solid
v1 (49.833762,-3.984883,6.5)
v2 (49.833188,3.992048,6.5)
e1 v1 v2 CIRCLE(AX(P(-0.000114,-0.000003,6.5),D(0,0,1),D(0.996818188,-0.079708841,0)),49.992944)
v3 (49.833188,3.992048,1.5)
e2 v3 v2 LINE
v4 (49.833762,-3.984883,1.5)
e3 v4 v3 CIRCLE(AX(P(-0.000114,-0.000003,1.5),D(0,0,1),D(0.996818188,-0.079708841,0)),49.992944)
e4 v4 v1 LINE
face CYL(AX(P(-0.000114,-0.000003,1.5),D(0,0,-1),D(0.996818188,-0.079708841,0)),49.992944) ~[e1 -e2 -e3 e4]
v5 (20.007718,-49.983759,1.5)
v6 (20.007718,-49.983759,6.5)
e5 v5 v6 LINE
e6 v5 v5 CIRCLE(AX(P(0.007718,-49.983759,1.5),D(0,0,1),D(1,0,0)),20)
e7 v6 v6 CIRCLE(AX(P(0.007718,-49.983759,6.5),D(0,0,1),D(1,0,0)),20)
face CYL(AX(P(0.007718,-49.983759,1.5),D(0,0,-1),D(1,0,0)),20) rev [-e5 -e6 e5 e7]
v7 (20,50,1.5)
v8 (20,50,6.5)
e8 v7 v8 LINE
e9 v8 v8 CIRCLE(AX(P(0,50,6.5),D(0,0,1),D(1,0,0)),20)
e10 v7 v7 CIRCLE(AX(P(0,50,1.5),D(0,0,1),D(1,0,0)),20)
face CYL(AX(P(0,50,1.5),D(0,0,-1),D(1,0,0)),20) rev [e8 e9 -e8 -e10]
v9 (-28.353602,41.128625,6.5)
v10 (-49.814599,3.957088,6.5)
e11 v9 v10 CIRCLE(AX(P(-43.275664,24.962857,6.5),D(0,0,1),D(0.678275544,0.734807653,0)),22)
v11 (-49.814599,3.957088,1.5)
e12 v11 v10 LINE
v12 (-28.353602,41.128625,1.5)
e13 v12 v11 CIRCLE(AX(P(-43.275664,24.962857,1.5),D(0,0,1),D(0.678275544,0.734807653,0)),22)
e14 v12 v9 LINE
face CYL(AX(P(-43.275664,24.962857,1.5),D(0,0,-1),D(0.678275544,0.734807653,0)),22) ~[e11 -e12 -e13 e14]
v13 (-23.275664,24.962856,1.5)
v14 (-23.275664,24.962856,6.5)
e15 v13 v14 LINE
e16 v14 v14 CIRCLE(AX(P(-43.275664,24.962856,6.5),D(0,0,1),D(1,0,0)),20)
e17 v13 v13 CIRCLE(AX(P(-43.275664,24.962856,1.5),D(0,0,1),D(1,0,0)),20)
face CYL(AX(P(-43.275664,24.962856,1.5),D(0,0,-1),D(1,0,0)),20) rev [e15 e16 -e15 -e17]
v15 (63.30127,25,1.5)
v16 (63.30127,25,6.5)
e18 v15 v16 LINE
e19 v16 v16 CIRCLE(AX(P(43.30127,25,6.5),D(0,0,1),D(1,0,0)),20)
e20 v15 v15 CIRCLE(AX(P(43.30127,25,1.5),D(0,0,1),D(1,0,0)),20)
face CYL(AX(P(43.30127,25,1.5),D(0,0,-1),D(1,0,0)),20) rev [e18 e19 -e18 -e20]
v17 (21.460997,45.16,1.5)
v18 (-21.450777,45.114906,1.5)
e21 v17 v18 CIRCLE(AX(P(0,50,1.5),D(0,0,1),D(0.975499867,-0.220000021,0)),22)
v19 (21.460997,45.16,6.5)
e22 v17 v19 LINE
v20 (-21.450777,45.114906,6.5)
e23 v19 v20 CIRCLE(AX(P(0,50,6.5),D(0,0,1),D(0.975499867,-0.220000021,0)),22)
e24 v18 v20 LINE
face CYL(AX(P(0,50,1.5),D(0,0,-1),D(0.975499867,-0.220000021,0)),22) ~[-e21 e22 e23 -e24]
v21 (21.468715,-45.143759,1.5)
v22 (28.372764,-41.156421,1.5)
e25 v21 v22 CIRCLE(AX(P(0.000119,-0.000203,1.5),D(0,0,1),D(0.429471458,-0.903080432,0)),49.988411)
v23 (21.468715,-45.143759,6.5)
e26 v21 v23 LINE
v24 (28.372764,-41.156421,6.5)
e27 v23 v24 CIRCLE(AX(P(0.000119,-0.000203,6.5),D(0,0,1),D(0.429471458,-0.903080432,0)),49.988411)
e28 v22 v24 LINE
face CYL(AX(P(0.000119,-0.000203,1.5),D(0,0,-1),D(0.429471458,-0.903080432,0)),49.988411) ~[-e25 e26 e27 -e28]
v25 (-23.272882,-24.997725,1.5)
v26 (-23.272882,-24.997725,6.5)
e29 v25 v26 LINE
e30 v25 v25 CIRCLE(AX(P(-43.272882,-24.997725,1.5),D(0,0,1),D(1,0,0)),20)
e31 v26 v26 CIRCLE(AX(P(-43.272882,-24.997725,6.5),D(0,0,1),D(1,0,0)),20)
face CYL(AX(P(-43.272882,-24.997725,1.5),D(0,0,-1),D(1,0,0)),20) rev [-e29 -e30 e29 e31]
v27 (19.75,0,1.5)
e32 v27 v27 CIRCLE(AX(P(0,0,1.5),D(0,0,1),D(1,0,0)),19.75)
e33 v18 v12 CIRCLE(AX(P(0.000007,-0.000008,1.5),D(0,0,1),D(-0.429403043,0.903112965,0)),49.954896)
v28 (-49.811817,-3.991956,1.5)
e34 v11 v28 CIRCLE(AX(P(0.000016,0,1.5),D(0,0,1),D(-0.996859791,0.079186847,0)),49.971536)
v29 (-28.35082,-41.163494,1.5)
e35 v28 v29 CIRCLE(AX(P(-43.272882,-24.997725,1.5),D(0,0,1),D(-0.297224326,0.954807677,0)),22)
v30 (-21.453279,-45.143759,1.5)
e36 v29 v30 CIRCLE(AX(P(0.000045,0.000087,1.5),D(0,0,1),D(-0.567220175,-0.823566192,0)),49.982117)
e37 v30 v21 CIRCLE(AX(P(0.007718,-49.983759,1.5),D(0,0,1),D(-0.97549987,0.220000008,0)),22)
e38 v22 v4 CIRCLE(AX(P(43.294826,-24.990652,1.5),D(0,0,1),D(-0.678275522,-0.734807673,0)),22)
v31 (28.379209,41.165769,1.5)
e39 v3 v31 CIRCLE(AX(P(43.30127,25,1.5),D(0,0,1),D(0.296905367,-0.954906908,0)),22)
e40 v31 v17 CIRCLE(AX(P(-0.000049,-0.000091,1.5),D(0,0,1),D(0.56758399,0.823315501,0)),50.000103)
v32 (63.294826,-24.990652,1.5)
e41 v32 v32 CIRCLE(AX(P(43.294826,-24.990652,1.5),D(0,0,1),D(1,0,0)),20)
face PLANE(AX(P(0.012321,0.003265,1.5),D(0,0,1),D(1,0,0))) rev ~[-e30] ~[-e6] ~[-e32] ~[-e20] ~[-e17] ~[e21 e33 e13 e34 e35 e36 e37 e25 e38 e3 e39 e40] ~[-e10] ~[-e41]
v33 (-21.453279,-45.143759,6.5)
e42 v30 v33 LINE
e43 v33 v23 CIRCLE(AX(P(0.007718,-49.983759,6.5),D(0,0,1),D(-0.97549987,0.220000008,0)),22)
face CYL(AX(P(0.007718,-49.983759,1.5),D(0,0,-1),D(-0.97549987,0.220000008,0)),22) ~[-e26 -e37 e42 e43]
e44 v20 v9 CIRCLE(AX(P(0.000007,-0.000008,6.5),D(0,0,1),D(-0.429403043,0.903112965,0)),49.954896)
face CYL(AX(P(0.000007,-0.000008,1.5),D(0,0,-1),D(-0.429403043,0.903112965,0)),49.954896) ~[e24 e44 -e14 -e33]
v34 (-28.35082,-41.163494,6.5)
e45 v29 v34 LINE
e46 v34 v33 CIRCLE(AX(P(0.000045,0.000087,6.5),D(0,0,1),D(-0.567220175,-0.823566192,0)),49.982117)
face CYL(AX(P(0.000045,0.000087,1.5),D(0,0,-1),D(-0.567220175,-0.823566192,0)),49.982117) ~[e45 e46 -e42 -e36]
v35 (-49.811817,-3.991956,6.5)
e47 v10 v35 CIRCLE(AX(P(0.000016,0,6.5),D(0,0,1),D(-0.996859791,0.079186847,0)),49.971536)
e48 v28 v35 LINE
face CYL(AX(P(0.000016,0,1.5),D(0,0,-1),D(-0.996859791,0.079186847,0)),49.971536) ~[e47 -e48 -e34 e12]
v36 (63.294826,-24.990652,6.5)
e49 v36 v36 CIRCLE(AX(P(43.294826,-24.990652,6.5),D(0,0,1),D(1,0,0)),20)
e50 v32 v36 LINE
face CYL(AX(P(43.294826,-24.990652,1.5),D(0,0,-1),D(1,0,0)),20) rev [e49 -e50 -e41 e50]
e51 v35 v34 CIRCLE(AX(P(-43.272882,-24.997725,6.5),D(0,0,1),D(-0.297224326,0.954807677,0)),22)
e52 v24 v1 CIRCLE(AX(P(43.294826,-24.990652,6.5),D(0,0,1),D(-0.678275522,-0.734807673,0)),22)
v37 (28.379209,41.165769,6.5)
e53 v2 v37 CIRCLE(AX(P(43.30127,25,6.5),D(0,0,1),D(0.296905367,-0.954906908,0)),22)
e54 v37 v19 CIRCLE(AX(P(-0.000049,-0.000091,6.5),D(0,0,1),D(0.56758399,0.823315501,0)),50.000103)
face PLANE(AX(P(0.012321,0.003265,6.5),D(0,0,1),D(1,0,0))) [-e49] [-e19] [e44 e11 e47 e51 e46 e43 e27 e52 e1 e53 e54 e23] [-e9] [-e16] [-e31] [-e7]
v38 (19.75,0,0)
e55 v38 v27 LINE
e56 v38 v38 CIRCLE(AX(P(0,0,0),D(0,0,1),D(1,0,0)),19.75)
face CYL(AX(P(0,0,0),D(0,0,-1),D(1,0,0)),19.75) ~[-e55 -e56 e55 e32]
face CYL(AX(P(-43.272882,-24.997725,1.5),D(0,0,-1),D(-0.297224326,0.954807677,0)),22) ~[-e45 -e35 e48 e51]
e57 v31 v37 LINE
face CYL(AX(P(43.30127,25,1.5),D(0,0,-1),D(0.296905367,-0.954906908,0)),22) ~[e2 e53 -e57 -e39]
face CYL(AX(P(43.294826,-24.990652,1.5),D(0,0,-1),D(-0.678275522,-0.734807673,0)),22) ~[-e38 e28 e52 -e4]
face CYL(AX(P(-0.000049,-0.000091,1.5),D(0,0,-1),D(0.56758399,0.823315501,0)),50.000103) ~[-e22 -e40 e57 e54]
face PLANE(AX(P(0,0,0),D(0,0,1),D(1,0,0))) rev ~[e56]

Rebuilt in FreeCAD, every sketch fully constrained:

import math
import FreeCAD as App
import Part
import Sketcher

V = App.Vector
Q = App.Units.Quantity

doc = App.newDocument("Part")
params = doc.addObject("Spreadsheet::Sheet", "Params")
for row, (alias, value) in enumerate([
    ("sketch1_diameter", "39.5 mm"),
    ("pad1_length", "1.5 mm"),
    ("sketch2_diameter", "40 mm"),
    ("sketch2_radius", "22 mm"),
    ("pad2_length", "5 mm"),
], start=1):
    params.set(f"A{row}", alias)
    params.set(f"B{row}", "=" + value)
    params.setAlias(f"B{row}", alias)

body = doc.addObject("PartDesign::Body", "Body")

sketch1 = body.newObject("Sketcher::SketchObject", "Sketch")
sketch1.AttachmentSupport = (doc.getObject("XY_Plane"), [""])
sketch1.MapMode = "FlatFace"
sketch1.addGeometry(Part.Circle(V(0, 0, 0), V(0, 0, 1), 19.75), False)
sketch1.addConstraint([
    Sketcher.Constraint("Coincident", 0, 3, -1, 1),
    Sketcher.Constraint("Diameter", 0, Q("39.5 mm")),
])
sketch1.setExpression("Constraints[1]", "Params.sketch1_diameter")
pad1 = body.newObject("PartDesign::Pad", "Pad")
pad1.Profile = sketch1
pad1.setExpression("Length", "Params.pad1_length")

sketch2 = body.newObject("Sketcher::SketchObject", "Sketch001")
sketch2.AttachmentSupport = (doc.getObject("XY_Plane"), [""])
sketch2.MapMode = "FlatFace"
sketch2.AttachmentOffset = App.Placement(V(0, 0, 1.5), App.Rotation())
sketch2.addGeometry([
    Part.ArcOfCircle(Part.Circle(V(0.000007, -0.000008, 0), V(0, 0, 1), 49.954896), math.radians(115.429682), math.radians(124.581936)),
    Part.ArcOfCircle(Part.Circle(V(-43.275664, 24.962857, 0), V(0, 0, 1), 22), math.radians(47.290966), math.radians(252.709034)),
    Part.ArcOfCircle(Part.Circle(V(0.000016, 0, 0), V(0, 0, 1), 49.971536), math.radians(175.458173), math.radians(184.581932)),
    Part.ArcOfCircle(Part.Circle(V(-43.272882, -24.997725, 0), V(0, 0, 1), 22), math.radians(107.290966), math.radians(312.709033)),
    Part.ArcOfCircle(Part.Circle(V(0.000045, 0.000087, 0), V(0, 0, 1), 49.982117), math.radians(-124.556607), math.radians(-115.418069)),
    Part.ArcOfCircle(Part.Circle(V(0.007718, -49.983759, 0), V(0, 0, 1), 22), math.radians(167.290967), math.radians(372.709033)),
    Part.ArcOfCircle(Part.Circle(V(0.000119, -0.000203, 0), V(0, 0, 1), 49.988411), math.radians(-64.565978), math.radians(-55.418047)),
    Part.ArcOfCircle(Part.Circle(V(43.294826, -24.990652, 0), V(0, 0, 1), 22), math.radians(-132.709033), math.radians(72.709032)),
    Part.ArcOfCircle(Part.Circle(V(-0.000114, -0.000003, 0), V(0, 0, 1), 49.992944), math.radians(-4.57183), math.radians(4.580076)),
    Part.ArcOfCircle(Part.Circle(V(43.30127, 25, 0), V(0, 0, 1), 22), math.radians(-72.728173), math.radians(132.709031)),
    Part.ArcOfCircle(Part.Circle(V(-0.000049, -0.000091, 0), V(0, 0, 1), 50.000103), math.radians(55.418079), math.radians(64.581928)),
    Part.ArcOfCircle(Part.Circle(V(0, 50, 0), V(0, 0, 1), 22), math.radians(-12.709034), math.radians(192.829453)),
    Part.Circle(V(0.007718, -49.983759, 0), V(0, 0, 1), 20),
    Part.Circle(V(-43.272882, -24.997725, 0), V(0, 0, 1), 20),
    Part.Circle(V(43.294826, -24.990652, 0), V(0, 0, 1), 20),
    Part.Circle(V(-43.275664, 24.962856, 0), V(0, 0, 1), 20),
    Part.Circle(V(0, 50, 0), V(0, 0, 1), 20),
    Part.Circle(V(43.30127, 25, 0), V(0, 0, 1), 20),
], False)
sketch2.addConstraint([
    Sketcher.Constraint("Coincident", 0, 2, 1, 1),
    Sketcher.Constraint("Coincident", 1, 2, 2, 1),
    Sketcher.Constraint("Coincident", 2, 2, 3, 1),
    Sketcher.Constraint("Coincident", 3, 2, 4, 1),
    Sketcher.Constraint("Coincident", 4, 2, 5, 1),
    Sketcher.Constraint("Coincident", 5, 2, 6, 1),
    Sketcher.Constraint("Coincident", 6, 2, 7, 1),
    Sketcher.Constraint("Coincident", 7, 2, 8, 1),
    Sketcher.Constraint("Coincident", 8, 2, 9, 1),
    Sketcher.Constraint("Coincident", 9, 2, 10, 1),
    Sketcher.Constraint("Coincident", 10, 2, 11, 1),
    Sketcher.Constraint("Coincident", 11, 2, 0, 1),
    Sketcher.Constraint("Coincident", 12, 3, 5, 3),
    Sketcher.Constraint("Coincident", 13, 3, 3, 3),
    Sketcher.Constraint("Coincident", 14, 3, 7, 3),
    Sketcher.Constraint("Coincident", 15, 3, 1, 3),
    Sketcher.Constraint("Coincident", 16, 3, 11, 3),
    Sketcher.Constraint("Coincident", 17, 3, 9, 3),
    Sketcher.Constraint("Equal", 1, 3),
    Sketcher.Constraint("Equal", 3, 5),
    Sketcher.Constraint("Equal", 5, 7),
    Sketcher.Constraint("Equal", 7, 9),
    Sketcher.Constraint("Equal", 9, 11),
    Sketcher.Constraint("Equal", 12, 13),
    Sketcher.Constraint("Equal", 13, 14),
    Sketcher.Constraint("Equal", 14, 15),
    Sketcher.Constraint("Equal", 15, 16),
    Sketcher.Constraint("Equal", 16, 17),
    Sketcher.Constraint("Symmetric", 4, 3, 10, 3, -1, 1),
    Sketcher.Constraint("PointOnObject", 2, 3, -1),
    Sketcher.Constraint("PointOnObject", 11, 3, -2),
    Sketcher.Constraint("Horizontal", 4, 2, 5, 2),
    Sketcher.Constraint("Diameter", 12, Q("40 mm")),
    Sketcher.Constraint("Radius", 1, Q("22 mm")),
    Sketcher.Constraint("DistanceY", -1, 1, 9, 3, Q("25 mm")),
    Sketcher.Constraint("DistanceY", -1, 1, 11, 3, Q("50 mm")),
    Sketcher.Constraint("DistanceY", -1, 1, 10, 2, Q("45.16 mm")),
    Sketcher.Constraint("Radius", 6, Q("49.988411 mm")),
    Sketcher.Constraint("DistanceY", 12, 3, 4, 2, Q("4.84 mm")),
    Sketcher.Constraint("Radius", 0, Q("49.954896 mm")),
    Sketcher.Constraint("Radius", 2, Q("49.971536 mm")),
    Sketcher.Constraint("Radius", 4, Q("49.982117 mm")),
    Sketcher.Constraint("Radius", 8, Q("49.992944 mm")),
    Sketcher.Constraint("Radius", 10, Q("50.000103 mm")),
    Sketcher.Constraint("DistanceX", 3, 3, 6, 3, Q("43.273001 mm")),
    Sketcher.Constraint("DistanceX", 6, 2, 7, 2, Q("21.460998 mm")),
    Sketcher.Constraint("DistanceX", 0, 2, -1, 1, Q("28.353602 mm")),
    Sketcher.Constraint("DistanceX", 1, 2, -1, 1, Q("49.814599 mm")),
    Sketcher.Constraint("DistanceX", 3, 3, 5, 3, Q("43.2806 mm")),
    Sketcher.Constraint("DistanceX", 2, 3, 5, 3, Q("0.007702 mm")),
    Sketcher.Constraint("DistanceY", 6, 3, 8, 3, Q("0.0002 mm")),
    Sketcher.Constraint("DistanceY", 7, 3, 8, 2, Q("28.9827 mm")),
    Sketcher.Constraint("DistanceX", 3, 3, -1, 1, Q("43.272882 mm")),
    Sketcher.Constraint("DistanceY", 7, 3, -1, 1, Q("24.990652 mm")),
    Sketcher.Constraint("DistanceX", -1, 1, 9, 3, Q("43.30127 mm")),
    Sketcher.Constraint("DistanceX", 3, 2, -1, 1, Q("28.35082 mm")),
    Sketcher.Constraint("DistanceX", -1, 1, 9, 2, Q("28.379209 mm")),
    Sketcher.Constraint("DistanceX", 1, 3, 0, 3, Q("43.275671 mm")),
    Sketcher.Constraint("DistanceX", 1, 3, 2, 3, Q("43.27568 mm")),
])
sketch2.setExpression("Constraints[32]", "Params.sketch2_diameter")
sketch2.setExpression("Constraints[33]", "Params.sketch2_radius")
pad2 = body.newObject("PartDesign::Pad", "Pad001")
pad2.Profile = sketch2
pad2.setExpression("Length", "Params.pad2_length")

doc.recompute()
